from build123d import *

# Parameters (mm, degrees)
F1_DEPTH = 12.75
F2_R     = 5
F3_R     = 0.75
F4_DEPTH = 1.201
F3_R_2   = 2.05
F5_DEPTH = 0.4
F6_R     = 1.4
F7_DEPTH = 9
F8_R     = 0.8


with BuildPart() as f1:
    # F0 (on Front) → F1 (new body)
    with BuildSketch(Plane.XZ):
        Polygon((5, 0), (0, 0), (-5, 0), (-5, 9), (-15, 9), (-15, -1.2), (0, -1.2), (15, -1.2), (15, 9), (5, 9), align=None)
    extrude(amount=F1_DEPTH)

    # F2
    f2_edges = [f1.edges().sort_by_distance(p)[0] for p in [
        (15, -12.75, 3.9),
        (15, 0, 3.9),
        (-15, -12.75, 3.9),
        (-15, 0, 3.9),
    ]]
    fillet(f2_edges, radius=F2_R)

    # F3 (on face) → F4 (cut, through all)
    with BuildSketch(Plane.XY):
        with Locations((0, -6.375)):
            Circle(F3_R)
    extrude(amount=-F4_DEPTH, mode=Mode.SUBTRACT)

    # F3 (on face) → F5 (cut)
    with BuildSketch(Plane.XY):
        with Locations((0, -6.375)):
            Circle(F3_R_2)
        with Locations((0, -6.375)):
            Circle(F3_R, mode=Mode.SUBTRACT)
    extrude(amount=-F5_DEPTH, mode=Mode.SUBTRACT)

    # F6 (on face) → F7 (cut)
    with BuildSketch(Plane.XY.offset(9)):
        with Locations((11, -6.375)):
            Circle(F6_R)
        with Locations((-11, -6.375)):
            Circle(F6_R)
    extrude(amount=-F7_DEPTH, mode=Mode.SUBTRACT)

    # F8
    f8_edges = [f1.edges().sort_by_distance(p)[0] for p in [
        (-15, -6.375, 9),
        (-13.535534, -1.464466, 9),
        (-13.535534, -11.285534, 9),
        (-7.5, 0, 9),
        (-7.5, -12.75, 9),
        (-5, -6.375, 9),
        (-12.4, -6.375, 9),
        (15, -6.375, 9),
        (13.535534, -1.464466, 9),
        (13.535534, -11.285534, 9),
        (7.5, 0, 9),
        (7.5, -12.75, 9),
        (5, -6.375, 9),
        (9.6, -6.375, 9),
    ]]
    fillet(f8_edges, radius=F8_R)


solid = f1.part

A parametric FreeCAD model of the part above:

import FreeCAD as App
import Part
import Sketcher


def edges_at(feature, points):
    """Names of the edges that pass closest to the given points."""
    edges = feature.Shape.Edges
    near = lambda p: min(range(len(edges)), key=lambda i: edges[i].distToShape(Part.Vertex(*p))[0])
    return sorted({f"Edge{near(p) + 1}" for p in points})


def add_polygon(sketch, points):
    """Adds a closed chain of lines whose ends are joined by coincident constraints."""
    first, n = sketch.GeometryCount, len(points)
    for a, b in zip(points, points[1:] + points[:1]):
        sketch.addGeometry(Part.LineSegment(App.Vector(*a, 0), App.Vector(*b, 0)), False)
    for i in range(n):
        sketch.addConstraint(Sketcher.Constraint("Coincident", first + i, 2, first + (i + 1) % n, 1))

doc = App.newDocument("Part")
params = doc.addObject("Spreadsheet::Sheet", "Params")
for row, (alias, value) in enumerate([
    ("sketch1_width", "10 mm"),
    ("sketch1_height", "9 mm"),
    ("sketch1_height2", "10.2 mm"),
    ("pad1_length", "12.75 mm"),
    ("fillet_radius", "5 mm"),
    ("sketch2_diameter", "1.5 mm"),
    ("sketch3_diameter", "4.1 mm"),
    ("sketch3_diameter2", "1.5 mm"),
    ("pocket2_length", "0.4 mm"),
    ("sketch4_diameter", "2.8 mm"),
    ("pocket3_length", "9 mm"),
    ("fillet2_radius", "0.8 mm"),
], start=1):
    params.set(f"A{row}", alias)
    params.set(f"B{row}", "=" + value)
    params.setAlias(f"B{row}", alias)

body = doc.addObject("PartDesign::Body", "Body")

sketch1 = body.newObject("Sketcher::SketchObject", "Sketch")
sketch1.AttachmentSupport = (doc.getObject("XZ_Plane"), [""])
sketch1.MapMode = "FlatFace"
add_polygon(sketch1, [(5, 0), (-5, 0), (-5, 9), (-15, 9), (-15, -1), (15, -1), (15, 9), (5, 9)])
sketch1.addConstraint(Sketcher.Constraint("Horizontal", 0))
sketch1.addConstraint(Sketcher.Constraint("Vertical", 1))
sketch1.addConstraint(Sketcher.Constraint("Horizontal", 2))
sketch1.addConstraint(Sketcher.Constraint("Vertical", 3))
sketch1.addConstraint(Sketcher.Constraint("Horizontal", 4))
sketch1.addConstraint(Sketcher.Constraint("Vertical", 5))
sketch1.addConstraint(Sketcher.Constraint("Horizontal", 6))
sketch1.addConstraint(Sketcher.Constraint("Vertical", 7))
sketch1.addConstraint(Sketcher.Constraint("Symmetric", 0, 2, 7, 2, -1, 1))
sketch1.addConstraint(Sketcher.Constraint("Symmetric", 2, 2, 5, 2, -2))
sketch1.addConstraint(Sketcher.Constraint("Equal", 0, 2))
sketch1.addConstraint(Sketcher.Constraint("DistanceX", 0, 2, 0, 1, 10.0))
sketch1.addConstraint(Sketcher.Constraint("DistanceY", 1, 1, 1, 2, 9.0))
sketch1.addConstraint(Sketcher.Constraint("DistanceY", 3, 2, 3, 1, 10.2))
sketch1.setExpression("Constraints[19]", "Params.sketch1_width")
sketch1.setExpression("Constraints[20]", "Params.sketch1_height")
sketch1.setExpression("Constraints[21]", "Params.sketch1_height2")
pad1 = body.newObject("PartDesign::Pad", "Pad")
pad1.Profile = sketch1
pad1.setExpression("Length", "Params.pad1_length")
doc.recompute()

fillet = body.newObject("PartDesign::Fillet", "Fillet")
fillet.Base = (pad1, edges_at(pad1, [
    (15, -12.75, 3.9),
    (15, 0, 3.9),
    (-15, -12.75, 3.9),
    (-15, 0, 3.9),
]))
fillet.setExpression("Radius", "Params.fillet_radius")

sketch2 = body.newObject("Sketcher::SketchObject", "Sketch001")
sketch2.AttachmentSupport = (doc.getObject("XY_Plane"), [""])
sketch2.MapMode = "FlatFace"
sketch2.addGeometry(Part.Circle(App.Vector(0, -6.4, 0), App.Vector(0, 0, 1), 0.8), False)
sketch2.addConstraint(Sketcher.Constraint("PointOnObject", 0, 3, -2))
sketch2.addConstraint(Sketcher.Constraint("Diameter", 0, 1.5))
sketch2.addConstraint(Sketcher.Constraint("DistanceY", 0, 3, -1, 1, 6.375))
sketch2.setExpression("Constraints[1]", "Params.sketch2_diameter")
pocket1 = body.newObject("PartDesign::Pocket", "Pocket")
pocket1.Profile = sketch2
pocket1.Type = "ThroughAll"

sketch3 = body.newObject("Sketcher::SketchObject", "Sketch002")
sketch3.AttachmentSupport = (doc.getObject("XY_Plane"), [""])
sketch3.MapMode = "FlatFace"
sketch3.addGeometry(Part.Circle(App.Vector(0, -6.4, 0), App.Vector(0, 0, 1), 2), False)
sketch3.addGeometry(Part.Circle(App.Vector(0, -6.4, 0), App.Vector(0, 0, 1), 0.8), False)
sketch3.addConstraint(Sketcher.Constraint("Coincident", 1, 3, 0, 3))
sketch3.addConstraint(Sketcher.Constraint("PointOnObject", 0, 3, -2))
sketch3.addConstraint(Sketcher.Constraint("Diameter", 0, 4.1))
sketch3.addConstraint(Sketcher.Constraint("Diameter", 1, 1.5))
sketch3.addConstraint(Sketcher.Constraint("DistanceY", 0, 3, -1, 1, 6.375))
sketch3.setExpression("Constraints[2]", "Params.sketch3_diameter")
sketch3.setExpression("Constraints[3]", "Params.sketch3_diameter2")
pocket2 = body.newObject("PartDesign::Pocket", "Pocket001")
pocket2.Profile = sketch3
pocket2.setExpression("Length", "Params.pocket2_length")

sketch4 = body.newObject("Sketcher::SketchObject", "Sketch003")
sketch4.AttachmentSupport = (doc.getObject("XY_Plane"), [""])
sketch4.MapMode = "FlatFace"
sketch4.AttachmentOffset = App.Placement(App.Vector(0, 0, 9), App.Rotation())
sketch4.addGeometry(Part.Circle(App.Vector(11, -6.4, 0), App.Vector(0, 0, 1), 1.4), False)
sketch4.addGeometry(Part.Circle(App.Vector(-11, -6.4, 0), App.Vector(0, 0, 1), 1.4), False)
sketch4.addConstraint(Sketcher.Constraint("Equal", 0, 1))
sketch4.addConstraint(Sketcher.Constraint("Symmetric", 0, 3, 1, 3, -2))
sketch4.addConstraint(Sketcher.Constraint("Diameter", 0, 2.8))
sketch4.addConstraint(Sketcher.Constraint("DistanceX", -1, 1, 0, 3, 11.0))
sketch4.addConstraint(Sketcher.Constraint("DistanceY", 0, 3, -1, 1, 6.375))
sketch4.setExpression("Constraints[2]", "Params.sketch4_diameter")
pocket3 = body.newObject("PartDesign::Pocket", "Pocket002")
pocket3.Profile = sketch4
pocket3.setExpression("Length", "Params.pocket3_length")
doc.recompute()

fillet2 = body.newObject("PartDesign::Fillet", "Fillet001")
fillet2.Base = (pocket3, edges_at(pocket3, [
    (-15, -6.375, 9),
    (-13.536, -1.464, 9),
    (-13.536, -11.286, 9),
    (-7.5, 0, 9),
    (-7.5, -12.75, 9),
    (-5, -6.375, 9),
    (-12.4, -6.375, 9),
    (15, -6.375, 9),
    (13.536, -1.464, 9),
    (13.536, -11.286, 9),
    (7.5, 0, 9),
    (7.5, -12.75, 9),
    (5, -6.375, 9),
    (9.6, -6.375, 9),
]))
fillet2.setExpression("Radius", "Params.fillet2_radius")

doc.recompute()
